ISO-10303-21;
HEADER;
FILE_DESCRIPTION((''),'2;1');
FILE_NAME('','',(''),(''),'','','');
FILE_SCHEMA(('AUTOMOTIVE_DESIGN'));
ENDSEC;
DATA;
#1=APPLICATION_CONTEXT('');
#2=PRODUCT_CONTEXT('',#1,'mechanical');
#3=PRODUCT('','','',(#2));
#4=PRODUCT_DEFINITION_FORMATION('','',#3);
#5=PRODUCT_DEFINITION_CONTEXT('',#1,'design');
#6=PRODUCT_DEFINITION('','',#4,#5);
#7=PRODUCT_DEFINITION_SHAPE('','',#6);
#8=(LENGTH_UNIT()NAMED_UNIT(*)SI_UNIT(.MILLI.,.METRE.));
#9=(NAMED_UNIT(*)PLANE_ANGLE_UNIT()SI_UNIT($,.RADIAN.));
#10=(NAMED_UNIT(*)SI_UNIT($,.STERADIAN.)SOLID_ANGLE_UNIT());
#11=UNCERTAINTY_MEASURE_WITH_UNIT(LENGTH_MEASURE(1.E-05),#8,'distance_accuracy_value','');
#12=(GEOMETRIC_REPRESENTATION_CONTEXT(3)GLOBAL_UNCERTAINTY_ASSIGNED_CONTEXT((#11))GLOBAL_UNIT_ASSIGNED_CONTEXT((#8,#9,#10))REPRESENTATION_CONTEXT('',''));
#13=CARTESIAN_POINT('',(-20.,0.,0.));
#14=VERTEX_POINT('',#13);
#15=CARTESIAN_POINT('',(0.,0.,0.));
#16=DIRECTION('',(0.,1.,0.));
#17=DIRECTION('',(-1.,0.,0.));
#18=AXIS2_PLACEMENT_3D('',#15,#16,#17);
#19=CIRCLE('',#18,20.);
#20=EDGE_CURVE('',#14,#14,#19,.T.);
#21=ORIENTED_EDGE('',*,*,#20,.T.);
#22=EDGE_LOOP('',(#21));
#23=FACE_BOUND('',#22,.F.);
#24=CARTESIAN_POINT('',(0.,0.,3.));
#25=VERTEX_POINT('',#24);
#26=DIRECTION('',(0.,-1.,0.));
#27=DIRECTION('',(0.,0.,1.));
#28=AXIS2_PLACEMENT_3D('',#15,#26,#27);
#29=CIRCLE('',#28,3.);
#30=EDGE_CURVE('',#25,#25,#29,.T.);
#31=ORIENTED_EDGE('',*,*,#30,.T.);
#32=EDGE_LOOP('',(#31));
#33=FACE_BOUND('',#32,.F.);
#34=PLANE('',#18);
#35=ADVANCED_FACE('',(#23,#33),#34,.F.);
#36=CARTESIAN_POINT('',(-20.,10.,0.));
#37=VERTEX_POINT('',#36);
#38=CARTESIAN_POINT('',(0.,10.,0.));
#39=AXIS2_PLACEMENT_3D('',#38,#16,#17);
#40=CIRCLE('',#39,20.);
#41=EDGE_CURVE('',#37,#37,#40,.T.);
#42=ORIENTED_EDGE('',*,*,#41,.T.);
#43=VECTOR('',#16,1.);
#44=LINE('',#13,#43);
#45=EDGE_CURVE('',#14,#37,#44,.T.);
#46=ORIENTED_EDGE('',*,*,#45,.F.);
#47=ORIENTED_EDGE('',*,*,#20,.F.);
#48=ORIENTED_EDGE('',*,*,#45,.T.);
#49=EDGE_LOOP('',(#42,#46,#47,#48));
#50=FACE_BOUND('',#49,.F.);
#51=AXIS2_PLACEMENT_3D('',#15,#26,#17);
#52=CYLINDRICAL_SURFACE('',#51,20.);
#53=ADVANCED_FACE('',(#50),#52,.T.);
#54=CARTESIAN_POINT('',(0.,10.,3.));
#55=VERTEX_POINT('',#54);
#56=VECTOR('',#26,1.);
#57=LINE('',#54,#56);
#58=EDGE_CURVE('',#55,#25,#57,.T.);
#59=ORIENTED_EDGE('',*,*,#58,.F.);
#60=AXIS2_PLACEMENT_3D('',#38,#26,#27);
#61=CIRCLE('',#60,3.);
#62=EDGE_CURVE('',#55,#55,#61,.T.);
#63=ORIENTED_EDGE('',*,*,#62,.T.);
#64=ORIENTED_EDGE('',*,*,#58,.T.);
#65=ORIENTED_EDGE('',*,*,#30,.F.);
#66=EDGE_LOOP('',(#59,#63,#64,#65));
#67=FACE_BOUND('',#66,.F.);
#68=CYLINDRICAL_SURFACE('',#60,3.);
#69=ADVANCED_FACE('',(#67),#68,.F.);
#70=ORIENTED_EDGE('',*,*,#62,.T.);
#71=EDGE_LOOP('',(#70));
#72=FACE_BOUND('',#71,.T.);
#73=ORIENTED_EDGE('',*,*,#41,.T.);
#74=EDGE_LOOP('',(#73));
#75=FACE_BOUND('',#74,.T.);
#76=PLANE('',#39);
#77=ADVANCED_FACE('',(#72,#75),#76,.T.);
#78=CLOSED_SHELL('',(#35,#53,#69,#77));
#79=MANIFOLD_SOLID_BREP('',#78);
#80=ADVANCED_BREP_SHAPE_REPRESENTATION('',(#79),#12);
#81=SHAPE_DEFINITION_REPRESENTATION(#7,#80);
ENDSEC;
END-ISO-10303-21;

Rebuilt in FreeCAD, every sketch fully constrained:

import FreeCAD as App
import Part
import Sketcher

V = App.Vector

doc = App.newDocument("Part")
body = doc.addObject("PartDesign::Body", "Body")

sketch1 = body.newObject("Sketcher::SketchObject", "Sketch")
sketch1.AttachmentSupport = (doc.getObject("XZ_Plane"), [""])
sketch1.MapMode = "FlatFace"
sketch1.addGeometry(Part.Circle(V(0, 0, 0), V(0, 0, 1), 20), False)
sketch1.addConstraint([
    Sketcher.Constraint("Coincident", 0, 3, -1, 1),
    Sketcher.Constraint("Diameter", 0, 40.0),
])
pad1 = body.newObject("PartDesign::Pad", "Pad")
pad1.Profile = sketch1
pad1.Length = 10
pad1.Reversed = True

sketch2 = body.newObject("Sketcher::SketchObject", "Sketch001")
sketch2.AttachmentSupport = (doc.getObject("XZ_Plane"), [""])
sketch2.MapMode = "FlatFace"
sketch2.AttachmentOffset = App.Placement(V(0, 0, -10), App.Rotation())
sketch2.addGeometry(Part.Circle(V(0, 0, 0), V(0, 0, 1), 3), False)
sketch2.addConstraint([
    Sketcher.Constraint("Coincident", 0, 3, -1, 1),
    Sketcher.Constraint("Diameter", 0, 6.0),
])
doc.recompute()
hole = body.newObject("PartDesign::Hole", "Hole")
hole.Profile = sketch2
hole.ThreadType = "None"
hole.Diameter = 6
hole.DepthType = "Dimension"
hole.Depth = 10
hole.DrillPoint = "Flat"
hole.Reversed = True

doc.recompute()
